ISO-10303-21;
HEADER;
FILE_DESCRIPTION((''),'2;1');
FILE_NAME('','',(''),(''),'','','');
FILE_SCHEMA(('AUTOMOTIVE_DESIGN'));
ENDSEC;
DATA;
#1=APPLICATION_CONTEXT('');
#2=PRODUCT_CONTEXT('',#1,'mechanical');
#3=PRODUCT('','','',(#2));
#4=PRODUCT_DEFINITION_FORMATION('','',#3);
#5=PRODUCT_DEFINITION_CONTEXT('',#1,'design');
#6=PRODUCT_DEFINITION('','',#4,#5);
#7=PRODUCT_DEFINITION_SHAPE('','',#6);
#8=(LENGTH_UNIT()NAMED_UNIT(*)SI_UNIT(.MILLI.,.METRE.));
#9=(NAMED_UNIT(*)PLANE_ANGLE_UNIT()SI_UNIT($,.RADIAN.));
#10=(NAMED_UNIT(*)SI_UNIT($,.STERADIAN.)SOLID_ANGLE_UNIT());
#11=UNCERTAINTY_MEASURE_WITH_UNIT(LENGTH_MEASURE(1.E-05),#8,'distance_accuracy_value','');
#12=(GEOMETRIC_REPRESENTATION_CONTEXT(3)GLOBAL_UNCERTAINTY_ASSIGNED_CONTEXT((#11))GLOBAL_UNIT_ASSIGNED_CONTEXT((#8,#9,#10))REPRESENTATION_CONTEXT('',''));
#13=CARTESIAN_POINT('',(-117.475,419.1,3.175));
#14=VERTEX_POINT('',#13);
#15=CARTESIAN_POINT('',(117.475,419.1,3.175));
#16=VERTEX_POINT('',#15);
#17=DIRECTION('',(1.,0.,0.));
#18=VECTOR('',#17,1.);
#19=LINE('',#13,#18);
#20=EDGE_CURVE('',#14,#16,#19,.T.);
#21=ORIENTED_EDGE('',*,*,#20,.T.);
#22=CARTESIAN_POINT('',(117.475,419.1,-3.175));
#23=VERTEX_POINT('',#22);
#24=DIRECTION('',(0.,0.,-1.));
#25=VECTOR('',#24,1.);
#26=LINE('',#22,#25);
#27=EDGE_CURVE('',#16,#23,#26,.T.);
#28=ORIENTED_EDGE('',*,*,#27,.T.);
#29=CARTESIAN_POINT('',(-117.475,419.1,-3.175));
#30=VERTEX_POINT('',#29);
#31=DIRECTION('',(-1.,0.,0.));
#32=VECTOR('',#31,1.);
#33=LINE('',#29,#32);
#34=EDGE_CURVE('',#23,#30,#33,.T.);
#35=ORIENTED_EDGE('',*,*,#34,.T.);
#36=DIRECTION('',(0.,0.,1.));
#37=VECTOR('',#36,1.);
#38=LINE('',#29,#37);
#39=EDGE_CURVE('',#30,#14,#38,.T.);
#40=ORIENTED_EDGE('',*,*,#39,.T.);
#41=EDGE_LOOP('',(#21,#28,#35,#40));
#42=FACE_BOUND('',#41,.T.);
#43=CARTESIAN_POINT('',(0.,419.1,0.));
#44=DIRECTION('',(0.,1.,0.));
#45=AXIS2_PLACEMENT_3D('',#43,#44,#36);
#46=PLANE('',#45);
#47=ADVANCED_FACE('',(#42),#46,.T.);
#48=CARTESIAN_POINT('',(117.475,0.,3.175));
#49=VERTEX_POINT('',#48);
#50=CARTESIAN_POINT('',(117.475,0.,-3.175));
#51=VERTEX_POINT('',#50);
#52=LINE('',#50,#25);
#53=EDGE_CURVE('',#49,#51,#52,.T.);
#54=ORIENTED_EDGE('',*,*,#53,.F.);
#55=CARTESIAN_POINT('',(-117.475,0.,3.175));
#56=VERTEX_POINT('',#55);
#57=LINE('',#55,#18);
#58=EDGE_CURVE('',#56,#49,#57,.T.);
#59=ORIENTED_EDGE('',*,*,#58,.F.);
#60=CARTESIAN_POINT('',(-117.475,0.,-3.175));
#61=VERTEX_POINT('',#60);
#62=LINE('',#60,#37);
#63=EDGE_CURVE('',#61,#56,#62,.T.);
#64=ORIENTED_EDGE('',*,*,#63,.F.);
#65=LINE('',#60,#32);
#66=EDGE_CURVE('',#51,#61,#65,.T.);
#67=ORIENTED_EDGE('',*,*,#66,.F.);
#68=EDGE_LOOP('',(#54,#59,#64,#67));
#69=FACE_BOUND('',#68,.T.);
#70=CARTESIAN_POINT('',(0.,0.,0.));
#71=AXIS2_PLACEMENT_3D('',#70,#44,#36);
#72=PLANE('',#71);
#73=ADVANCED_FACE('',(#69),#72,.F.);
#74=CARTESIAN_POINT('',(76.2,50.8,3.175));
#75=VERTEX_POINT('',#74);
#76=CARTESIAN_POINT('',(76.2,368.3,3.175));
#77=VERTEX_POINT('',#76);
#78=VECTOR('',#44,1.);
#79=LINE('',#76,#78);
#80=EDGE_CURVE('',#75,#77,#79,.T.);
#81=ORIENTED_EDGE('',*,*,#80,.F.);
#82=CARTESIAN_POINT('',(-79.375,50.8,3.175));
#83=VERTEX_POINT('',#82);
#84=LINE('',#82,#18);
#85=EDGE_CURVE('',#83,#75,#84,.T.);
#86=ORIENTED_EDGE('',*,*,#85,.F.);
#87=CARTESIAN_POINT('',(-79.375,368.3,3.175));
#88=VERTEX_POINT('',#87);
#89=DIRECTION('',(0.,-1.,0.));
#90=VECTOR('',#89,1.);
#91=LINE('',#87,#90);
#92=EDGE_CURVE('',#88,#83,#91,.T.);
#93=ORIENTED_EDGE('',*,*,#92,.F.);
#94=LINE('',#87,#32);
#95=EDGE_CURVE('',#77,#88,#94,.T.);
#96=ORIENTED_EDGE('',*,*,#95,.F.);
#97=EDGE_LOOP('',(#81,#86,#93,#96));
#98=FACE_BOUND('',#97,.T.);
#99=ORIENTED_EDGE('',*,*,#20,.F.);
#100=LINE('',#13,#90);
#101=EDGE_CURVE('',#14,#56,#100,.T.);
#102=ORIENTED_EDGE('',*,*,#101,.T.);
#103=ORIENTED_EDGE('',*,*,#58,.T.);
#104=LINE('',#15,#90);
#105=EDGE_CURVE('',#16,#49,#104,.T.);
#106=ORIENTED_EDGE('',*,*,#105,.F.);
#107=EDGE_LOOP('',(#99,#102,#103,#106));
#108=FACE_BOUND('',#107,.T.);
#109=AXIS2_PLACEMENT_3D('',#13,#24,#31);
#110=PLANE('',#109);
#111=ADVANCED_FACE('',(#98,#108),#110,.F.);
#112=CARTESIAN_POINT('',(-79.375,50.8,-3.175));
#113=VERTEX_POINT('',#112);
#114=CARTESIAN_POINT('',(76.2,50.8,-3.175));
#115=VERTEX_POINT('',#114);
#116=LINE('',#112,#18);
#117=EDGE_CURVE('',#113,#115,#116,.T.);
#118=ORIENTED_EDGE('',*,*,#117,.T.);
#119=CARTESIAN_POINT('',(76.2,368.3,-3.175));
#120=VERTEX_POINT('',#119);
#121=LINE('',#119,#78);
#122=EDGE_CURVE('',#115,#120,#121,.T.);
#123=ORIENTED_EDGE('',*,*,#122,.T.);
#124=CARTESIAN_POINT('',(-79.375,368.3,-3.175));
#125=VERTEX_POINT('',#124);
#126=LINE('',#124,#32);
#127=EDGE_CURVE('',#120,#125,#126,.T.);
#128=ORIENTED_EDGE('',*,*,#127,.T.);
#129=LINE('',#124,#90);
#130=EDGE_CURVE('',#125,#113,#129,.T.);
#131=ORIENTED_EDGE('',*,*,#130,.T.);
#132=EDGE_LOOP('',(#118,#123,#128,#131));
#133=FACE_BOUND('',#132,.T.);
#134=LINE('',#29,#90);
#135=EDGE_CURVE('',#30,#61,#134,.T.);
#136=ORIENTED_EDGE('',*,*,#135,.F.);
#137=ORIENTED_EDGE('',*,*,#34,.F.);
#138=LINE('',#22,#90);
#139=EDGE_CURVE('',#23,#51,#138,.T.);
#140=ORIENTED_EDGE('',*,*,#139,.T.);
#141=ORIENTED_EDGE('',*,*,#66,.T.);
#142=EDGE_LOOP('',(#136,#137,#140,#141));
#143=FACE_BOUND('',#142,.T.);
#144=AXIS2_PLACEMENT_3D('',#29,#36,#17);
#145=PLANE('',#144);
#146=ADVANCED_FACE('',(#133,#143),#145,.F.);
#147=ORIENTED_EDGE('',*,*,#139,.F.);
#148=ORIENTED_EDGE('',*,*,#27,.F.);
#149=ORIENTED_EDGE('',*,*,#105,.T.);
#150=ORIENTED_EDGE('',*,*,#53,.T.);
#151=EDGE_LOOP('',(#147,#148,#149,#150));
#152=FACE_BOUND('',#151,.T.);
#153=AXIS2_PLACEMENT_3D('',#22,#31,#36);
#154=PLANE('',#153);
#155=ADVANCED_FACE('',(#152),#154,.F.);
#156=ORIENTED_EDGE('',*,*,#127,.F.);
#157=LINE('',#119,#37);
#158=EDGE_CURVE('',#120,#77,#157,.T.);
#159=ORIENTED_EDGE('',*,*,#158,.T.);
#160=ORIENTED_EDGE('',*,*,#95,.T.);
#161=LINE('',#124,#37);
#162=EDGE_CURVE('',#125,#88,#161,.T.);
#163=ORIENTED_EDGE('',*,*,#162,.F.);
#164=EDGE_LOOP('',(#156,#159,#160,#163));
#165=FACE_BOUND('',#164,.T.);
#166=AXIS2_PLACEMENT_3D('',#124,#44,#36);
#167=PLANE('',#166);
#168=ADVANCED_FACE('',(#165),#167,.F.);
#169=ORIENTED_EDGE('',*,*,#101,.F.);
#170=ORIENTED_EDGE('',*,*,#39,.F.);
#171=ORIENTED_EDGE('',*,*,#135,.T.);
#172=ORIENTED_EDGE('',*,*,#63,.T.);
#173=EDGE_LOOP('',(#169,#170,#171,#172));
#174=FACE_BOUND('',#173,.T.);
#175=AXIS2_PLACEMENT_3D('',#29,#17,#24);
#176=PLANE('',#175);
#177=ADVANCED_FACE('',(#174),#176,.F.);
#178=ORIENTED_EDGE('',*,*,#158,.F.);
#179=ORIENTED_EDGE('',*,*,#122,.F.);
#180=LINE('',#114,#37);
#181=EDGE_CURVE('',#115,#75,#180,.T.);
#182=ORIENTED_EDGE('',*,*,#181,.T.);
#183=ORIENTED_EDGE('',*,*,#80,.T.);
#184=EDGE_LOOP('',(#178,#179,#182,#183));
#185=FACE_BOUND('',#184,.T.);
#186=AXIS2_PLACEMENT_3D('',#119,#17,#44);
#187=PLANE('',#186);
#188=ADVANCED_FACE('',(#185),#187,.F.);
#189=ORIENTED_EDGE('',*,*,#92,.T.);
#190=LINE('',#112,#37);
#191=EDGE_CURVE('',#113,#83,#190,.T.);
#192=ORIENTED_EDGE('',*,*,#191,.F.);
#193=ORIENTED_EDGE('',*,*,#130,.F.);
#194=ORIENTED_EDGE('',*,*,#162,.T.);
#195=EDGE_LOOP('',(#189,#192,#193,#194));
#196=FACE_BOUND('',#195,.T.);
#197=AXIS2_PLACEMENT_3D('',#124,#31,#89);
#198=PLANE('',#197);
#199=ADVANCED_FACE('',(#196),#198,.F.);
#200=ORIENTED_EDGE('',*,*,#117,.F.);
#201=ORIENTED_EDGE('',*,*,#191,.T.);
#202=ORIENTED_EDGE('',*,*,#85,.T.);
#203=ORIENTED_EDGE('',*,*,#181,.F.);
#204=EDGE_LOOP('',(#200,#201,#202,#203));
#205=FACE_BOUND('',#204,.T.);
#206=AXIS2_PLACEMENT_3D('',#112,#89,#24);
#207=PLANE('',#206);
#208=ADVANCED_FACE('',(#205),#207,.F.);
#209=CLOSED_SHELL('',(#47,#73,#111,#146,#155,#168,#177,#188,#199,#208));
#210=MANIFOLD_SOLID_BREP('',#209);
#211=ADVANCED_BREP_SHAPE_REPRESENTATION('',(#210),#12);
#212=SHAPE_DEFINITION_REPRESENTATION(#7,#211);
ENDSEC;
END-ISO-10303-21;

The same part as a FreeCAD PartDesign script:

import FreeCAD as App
import Part
import Sketcher

V = App.Vector
Q = App.Units.Quantity

doc = App.newDocument("Part")
body = doc.addObject("PartDesign::Body", "Body")

sketch1 = doc.addObject("Sketcher::SketchObject", "Sketch")
body.addObject(sketch1)
sketch1.AttachmentSupport = (doc.XZ_Plane, [""])
sketch1.MapMode = "FlatFace"
sketch1.addGeometry([
    Part.LineSegment(V(-117, -3, 0), V(-117, 3, 0)),
    Part.LineSegment(V(-117, 3, 0), V(117, 3, 0)),
    Part.LineSegment(V(117, 3, 0), V(117, -3, 0)),
    Part.LineSegment(V(117, -3, 0), V(-117, -3, 0)),
], False)
sketch1.addConstraint([
    Sketcher.Constraint("Coincident", 0, 2, 1, 1),
    Sketcher.Constraint("Coincident", 1, 2, 2, 1),
    Sketcher.Constraint("Coincident", 2, 2, 3, 1),
    Sketcher.Constraint("Coincident", 3, 2, 0, 1),
    Sketcher.Constraint("Vertical", 0),
    Sketcher.Constraint("Horizontal", 1),
    Sketcher.Constraint("Vertical", 2),
    Sketcher.Constraint("Horizontal", 3),
    Sketcher.Constraint("Symmetric", 0, 2, 2, 2, -1, 1),
    Sketcher.Constraint("DistanceX", 1, 1, 1, 2, Q("9.25 in")),
    Sketcher.Constraint("DistanceY", 0, 1, 0, 2, Q("0.25 in")),
])
pad1 = doc.addObject("PartDesign::Pad", "Pad")
body.addObject(pad1)
pad1.Profile = sketch1
pad1.Length = Q("16.5 in")
pad1.Reversed = True

sketch2 = doc.addObject("Sketcher::SketchObject", "Sketch001")
body.addObject(sketch2)
sketch2.AttachmentSupport = (doc.XY_Plane, [""])
sketch2.MapMode = "FlatFace"
sketch2.AttachmentOffset = App.Placement(V(0, 0, 0.125 * 25.4), App.Rotation())
sketch2.addGeometry([
    Part.LineSegment(V(-79, 368, 0), V(-79, 51, 0)),
    Part.LineSegment(V(-79, 51, 0), V(76, 51, 0)),
    Part.LineSegment(V(76, 51, 0), V(76, 368, 0)),
    Part.LineSegment(V(76, 368, 0), V(-79, 368, 0)),
], False)
sketch2.addConstraint([
    Sketcher.Constraint("Coincident", 0, 2, 1, 1),
    Sketcher.Constraint("Coincident", 1, 2, 2, 1),
    Sketcher.Constraint("Coincident", 2, 2, 3, 1),
    Sketcher.Constraint("Coincident", 3, 2, 0, 1),
    Sketcher.Constraint("Vertical", 0),
    Sketcher.Constraint("Horizontal", 1),
    Sketcher.Constraint("Vertical", 2),
    Sketcher.Constraint("Horizontal", 3),
    Sketcher.Constraint("DistanceY", 0, 2, 0, 1, Q("12.5 in")),
    Sketcher.Constraint("DistanceY", -1, 1, 0, 2, Q("2 in")),
    Sketcher.Constraint("DistanceX", -1, 1, 1, 2, Q("3 in")),
    Sketcher.Constraint("DistanceX", 1, 1, 1, 2, Q("6.125 in")),
])
pocket1 = doc.addObject("PartDesign::Pocket", "Pocket")
body.addObject(pocket1)
pocket1.Profile = sketch2
pocket1.Length = Q("0.25 in")

doc.recompute()
